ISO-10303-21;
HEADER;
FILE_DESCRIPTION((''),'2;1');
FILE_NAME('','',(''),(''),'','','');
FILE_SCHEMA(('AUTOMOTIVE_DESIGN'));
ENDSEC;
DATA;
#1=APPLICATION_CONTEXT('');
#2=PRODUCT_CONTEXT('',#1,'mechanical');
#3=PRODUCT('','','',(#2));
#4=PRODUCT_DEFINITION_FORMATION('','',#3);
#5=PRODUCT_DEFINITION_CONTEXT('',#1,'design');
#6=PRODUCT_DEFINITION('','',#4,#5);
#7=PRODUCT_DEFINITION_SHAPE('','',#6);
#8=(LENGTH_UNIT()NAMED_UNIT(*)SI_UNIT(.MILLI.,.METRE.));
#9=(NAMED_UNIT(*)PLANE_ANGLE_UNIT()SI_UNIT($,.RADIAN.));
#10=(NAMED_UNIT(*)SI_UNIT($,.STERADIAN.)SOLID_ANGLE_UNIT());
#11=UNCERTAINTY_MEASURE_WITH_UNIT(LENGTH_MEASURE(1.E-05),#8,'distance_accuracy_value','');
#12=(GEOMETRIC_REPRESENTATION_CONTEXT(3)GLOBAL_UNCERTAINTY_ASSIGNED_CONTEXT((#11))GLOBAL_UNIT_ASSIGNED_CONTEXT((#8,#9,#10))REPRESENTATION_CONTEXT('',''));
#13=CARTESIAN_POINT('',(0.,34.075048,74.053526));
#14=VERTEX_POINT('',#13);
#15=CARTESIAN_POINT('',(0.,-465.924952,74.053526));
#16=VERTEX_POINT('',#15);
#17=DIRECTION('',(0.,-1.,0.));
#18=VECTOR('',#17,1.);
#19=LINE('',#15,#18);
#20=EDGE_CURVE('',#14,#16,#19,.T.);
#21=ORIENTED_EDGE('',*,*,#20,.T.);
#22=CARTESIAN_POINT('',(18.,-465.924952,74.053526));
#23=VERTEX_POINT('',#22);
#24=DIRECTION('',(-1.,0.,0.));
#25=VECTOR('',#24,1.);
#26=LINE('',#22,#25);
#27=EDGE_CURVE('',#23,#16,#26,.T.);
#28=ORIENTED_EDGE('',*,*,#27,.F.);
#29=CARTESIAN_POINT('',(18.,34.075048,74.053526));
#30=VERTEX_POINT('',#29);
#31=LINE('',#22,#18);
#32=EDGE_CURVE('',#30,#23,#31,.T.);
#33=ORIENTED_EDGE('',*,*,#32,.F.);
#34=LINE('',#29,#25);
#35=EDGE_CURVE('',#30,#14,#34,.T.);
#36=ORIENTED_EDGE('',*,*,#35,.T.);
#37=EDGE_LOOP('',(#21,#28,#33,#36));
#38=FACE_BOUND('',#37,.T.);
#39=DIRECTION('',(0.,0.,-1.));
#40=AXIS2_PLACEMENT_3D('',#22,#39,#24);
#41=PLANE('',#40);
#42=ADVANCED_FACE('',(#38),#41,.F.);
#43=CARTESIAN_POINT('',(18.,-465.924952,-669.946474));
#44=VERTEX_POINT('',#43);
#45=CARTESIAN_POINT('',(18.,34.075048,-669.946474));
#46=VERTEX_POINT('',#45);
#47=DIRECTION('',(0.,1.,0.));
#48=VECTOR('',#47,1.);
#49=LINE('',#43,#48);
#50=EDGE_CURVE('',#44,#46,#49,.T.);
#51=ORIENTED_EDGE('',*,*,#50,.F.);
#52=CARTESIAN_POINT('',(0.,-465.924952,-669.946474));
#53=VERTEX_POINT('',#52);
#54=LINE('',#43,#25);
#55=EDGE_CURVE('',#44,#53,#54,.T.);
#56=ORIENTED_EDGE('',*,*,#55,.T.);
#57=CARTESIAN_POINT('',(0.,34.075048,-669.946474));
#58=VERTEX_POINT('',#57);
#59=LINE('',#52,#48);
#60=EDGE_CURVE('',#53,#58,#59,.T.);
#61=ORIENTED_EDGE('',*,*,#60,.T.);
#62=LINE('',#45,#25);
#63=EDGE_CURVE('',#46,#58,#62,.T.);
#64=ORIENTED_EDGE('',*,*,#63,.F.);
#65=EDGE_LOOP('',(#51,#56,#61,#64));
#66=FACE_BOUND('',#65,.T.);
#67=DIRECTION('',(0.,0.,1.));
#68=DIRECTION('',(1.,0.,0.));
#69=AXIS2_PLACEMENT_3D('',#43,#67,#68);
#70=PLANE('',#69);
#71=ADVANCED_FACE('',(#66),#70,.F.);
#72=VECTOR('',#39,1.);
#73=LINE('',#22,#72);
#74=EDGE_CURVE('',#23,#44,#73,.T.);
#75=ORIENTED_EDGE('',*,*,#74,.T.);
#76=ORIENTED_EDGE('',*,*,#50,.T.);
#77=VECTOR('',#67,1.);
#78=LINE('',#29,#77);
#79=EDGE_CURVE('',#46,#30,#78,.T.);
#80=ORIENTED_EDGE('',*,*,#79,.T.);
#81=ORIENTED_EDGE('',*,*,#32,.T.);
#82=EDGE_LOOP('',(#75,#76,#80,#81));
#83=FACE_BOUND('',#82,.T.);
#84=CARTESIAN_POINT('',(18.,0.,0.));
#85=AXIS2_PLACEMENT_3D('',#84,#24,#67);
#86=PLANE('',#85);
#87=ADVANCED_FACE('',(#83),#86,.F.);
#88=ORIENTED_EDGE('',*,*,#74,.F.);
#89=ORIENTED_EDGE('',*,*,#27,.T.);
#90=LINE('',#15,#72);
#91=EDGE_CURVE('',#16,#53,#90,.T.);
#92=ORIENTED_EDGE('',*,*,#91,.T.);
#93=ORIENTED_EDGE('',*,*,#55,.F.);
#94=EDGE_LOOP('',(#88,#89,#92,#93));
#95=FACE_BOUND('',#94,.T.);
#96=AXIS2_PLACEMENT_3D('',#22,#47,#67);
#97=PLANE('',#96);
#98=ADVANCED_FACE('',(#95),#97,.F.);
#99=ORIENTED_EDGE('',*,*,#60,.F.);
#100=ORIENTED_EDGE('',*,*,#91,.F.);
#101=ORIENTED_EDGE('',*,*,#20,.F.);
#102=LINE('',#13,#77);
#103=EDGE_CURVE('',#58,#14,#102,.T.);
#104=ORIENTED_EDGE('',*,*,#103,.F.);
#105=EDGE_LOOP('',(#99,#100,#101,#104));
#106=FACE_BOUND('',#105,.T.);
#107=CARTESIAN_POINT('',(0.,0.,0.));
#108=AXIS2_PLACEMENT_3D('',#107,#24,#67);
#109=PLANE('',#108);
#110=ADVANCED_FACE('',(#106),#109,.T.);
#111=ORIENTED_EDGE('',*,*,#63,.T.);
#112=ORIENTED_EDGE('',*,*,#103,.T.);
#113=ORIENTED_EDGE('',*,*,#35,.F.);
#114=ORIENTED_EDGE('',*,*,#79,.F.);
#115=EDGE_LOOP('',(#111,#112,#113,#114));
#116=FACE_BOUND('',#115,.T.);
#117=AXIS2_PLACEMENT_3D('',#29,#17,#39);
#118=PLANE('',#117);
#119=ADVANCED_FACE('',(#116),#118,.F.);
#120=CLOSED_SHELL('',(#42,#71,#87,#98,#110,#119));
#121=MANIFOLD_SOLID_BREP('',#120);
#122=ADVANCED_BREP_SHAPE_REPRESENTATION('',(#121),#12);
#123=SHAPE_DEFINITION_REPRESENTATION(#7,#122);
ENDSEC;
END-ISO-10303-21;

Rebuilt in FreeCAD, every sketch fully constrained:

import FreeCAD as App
import Part
import Sketcher
from FreeCAD import Vector


def add_polygon(sketch, points):
    """Adds a closed chain of lines whose ends are joined by coincident constraints."""
    first, n = sketch.GeometryCount, len(points)
    for a, b in zip(points, points[1:] + points[:1]):
        sketch.addGeometry(Part.LineSegment(App.Vector(*a, 0), App.Vector(*b, 0)), False)
    for i in range(n):
        sketch.addConstraint(Sketcher.Constraint("Coincident", first + i, 2, first + (i + 1) % n, 1))

doc = App.newDocument("Part")
body = doc.addObject("PartDesign::Body", "Body")

sketch1 = body.newObject("Sketcher::SketchObject", "Sketch")
sketch1.AttachmentSupport = (doc.getObject("YZ_Plane"), [""])
sketch1.MapMode = "FlatFace"
add_polygon(sketch1, [(34.075048, 74.053526), (-465.924952, 74.053526), (-465.924952, -669.946474), (34.075048, -669.946474)])
sketch1.addConstraint([
    Sketcher.Constraint("Horizontal", 0),
    Sketcher.Constraint("Vertical", 1),
    Sketcher.Constraint("Horizontal", 2),
    Sketcher.Constraint("Vertical", 3),
    Sketcher.Constraint("DistanceX", 0, 2, 0, 1, 500.0),
    Sketcher.Constraint("DistanceY", 1, 2, 1, 1, 744.0),
    Sketcher.Constraint("DistanceX", 0, 2, -1, 1, 465.924952),
    Sketcher.Constraint("DistanceY", -1, 1, 0, 2, 74.053526),
])
pad1 = body.newObject("PartDesign::Pad", "Pad")
pad1.Profile = sketch1
pad1.Length = 18

doc.recompute()
